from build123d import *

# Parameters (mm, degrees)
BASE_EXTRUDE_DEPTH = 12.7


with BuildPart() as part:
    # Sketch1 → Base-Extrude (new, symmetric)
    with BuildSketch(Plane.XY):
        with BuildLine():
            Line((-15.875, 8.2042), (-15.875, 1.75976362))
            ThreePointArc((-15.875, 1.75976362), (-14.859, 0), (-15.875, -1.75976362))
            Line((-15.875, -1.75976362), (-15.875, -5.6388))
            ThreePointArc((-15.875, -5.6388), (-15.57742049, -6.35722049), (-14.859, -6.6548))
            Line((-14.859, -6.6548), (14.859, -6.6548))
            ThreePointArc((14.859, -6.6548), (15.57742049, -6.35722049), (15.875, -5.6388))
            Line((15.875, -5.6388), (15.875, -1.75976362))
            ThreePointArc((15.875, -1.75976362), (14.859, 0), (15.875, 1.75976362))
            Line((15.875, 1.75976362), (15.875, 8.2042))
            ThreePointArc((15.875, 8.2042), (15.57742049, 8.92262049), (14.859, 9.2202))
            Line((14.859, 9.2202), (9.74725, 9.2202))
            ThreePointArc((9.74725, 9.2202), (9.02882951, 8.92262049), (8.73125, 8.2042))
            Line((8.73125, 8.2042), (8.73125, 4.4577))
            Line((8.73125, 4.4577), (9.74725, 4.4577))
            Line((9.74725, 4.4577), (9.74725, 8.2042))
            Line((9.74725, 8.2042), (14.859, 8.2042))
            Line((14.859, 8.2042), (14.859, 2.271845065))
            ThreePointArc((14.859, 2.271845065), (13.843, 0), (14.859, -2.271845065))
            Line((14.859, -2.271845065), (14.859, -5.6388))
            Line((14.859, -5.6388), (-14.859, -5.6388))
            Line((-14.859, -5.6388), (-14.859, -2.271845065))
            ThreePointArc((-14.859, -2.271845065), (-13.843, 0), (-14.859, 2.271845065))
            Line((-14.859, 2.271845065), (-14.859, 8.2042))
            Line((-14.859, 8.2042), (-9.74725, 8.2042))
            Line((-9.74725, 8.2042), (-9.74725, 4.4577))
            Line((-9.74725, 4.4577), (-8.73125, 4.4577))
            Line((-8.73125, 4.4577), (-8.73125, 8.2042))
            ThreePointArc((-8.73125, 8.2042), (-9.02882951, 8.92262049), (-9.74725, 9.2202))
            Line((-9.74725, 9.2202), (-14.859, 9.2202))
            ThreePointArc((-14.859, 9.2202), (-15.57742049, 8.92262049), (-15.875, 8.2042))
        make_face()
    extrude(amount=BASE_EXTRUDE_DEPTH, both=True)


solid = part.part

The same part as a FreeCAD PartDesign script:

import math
import FreeCAD as App
import Part
import Sketcher
from FreeCAD import Vector
Q = App.Units.Quantity

doc = App.newDocument("Part")
params = doc.addObject("Spreadsheet::Sheet", "Params")
for row, (alias, value) in enumerate([
    ("sketch1_radius", "0.08 in"),
    ("sketch1_radius2", "0.04 in"),
    ("sketch1_radius3", "0.12 in"),
    ("sketch1_width", "1.17 in"),
    ("pad1_length", "1 in"),
], start=1):
    params.set(f"A{row}", alias)
    params.set(f"B{row}", "=" + value)
    params.setAlias(f"B{row}", alias)

body = doc.addObject("PartDesign::Body", "Body")

sketch1 = doc.addObject("Sketcher::SketchObject", "Sketch")
body.addObject(sketch1)
sketch1.AttachmentSupport = (doc.XY_Plane, [""])
sketch1.MapMode = "FlatFace"
sketch1.addGeometry(Part.LineSegment(Vector(-15.9, 8.2, 0), Vector(-15.9, 1.8, 0)), False)
sketch1.addGeometry(Part.ArcOfCircle(Part.Circle(Vector(-16.9, 0, 0), Vector(0, 0, 1), 2), math.radians(-60), math.radians(60)), False)
sketch1.addGeometry(Part.LineSegment(Vector(-15.9, -1.8, 0), Vector(-15.9, -5.6, 0)), False)
sketch1.addGeometry(Part.ArcOfCircle(Part.Circle(Vector(-14.9, -5.6, 0), Vector(0, 0, 1), 1), math.radians(180), math.radians(270)), False)
sketch1.addGeometry(Part.LineSegment(Vector(-14.9, -6.7, 0), Vector(14.9, -6.7, 0)), False)
sketch1.addGeometry(Part.ArcOfCircle(Part.Circle(Vector(14.9, -5.6, 0), Vector(0, 0, 1), 1), math.radians(-90), math.radians(0)), False)
sketch1.addGeometry(Part.LineSegment(Vector(15.9, -5.6, 0), Vector(15.9, -1.8, 0)), False)
sketch1.addGeometry(Part.ArcOfCircle(Part.Circle(Vector(16.9, 0, 0), Vector(0, 0, 1), 2), math.radians(120), math.radians(240)), False)
sketch1.addGeometry(Part.LineSegment(Vector(15.9, 1.8, 0), Vector(15.9, 8.2, 0)), False)
sketch1.addGeometry(Part.ArcOfCircle(Part.Circle(Vector(14.9, 8.2, 0), Vector(0, 0, 1), 1), math.radians(0), math.radians(90)), False)
sketch1.addGeometry(Part.LineSegment(Vector(14.9, 9.2, 0), Vector(9.7, 9.2, 0)), False)
sketch1.addGeometry(Part.ArcOfCircle(Part.Circle(Vector(9.7, 8.2, 0), Vector(0, 0, 1), 1), math.radians(90), math.radians(180)), False)
sketch1.addGeometry(Part.LineSegment(Vector(8.7, 8.2, 0), Vector(8.7, 4.5, 0)), False)
sketch1.addGeometry(Part.LineSegment(Vector(8.7, 4.5, 0), Vector(9.7, 4.5, 0)), False)
sketch1.addGeometry(Part.LineSegment(Vector(9.7, 4.5, 0), Vector(9.7, 8.2, 0)), False)
sketch1.addGeometry(Part.LineSegment(Vector(9.7, 8.2, 0), Vector(14.9, 8.2, 0)), False)
sketch1.addGeometry(Part.LineSegment(Vector(14.9, 8.2, 0), Vector(14.9, 2.3, 0)), False)
sketch1.addGeometry(Part.ArcOfCircle(Part.Circle(Vector(16.9, 0, 0), Vector(0, 0, 1), 3), math.radians(132), math.radians(228)), False)
sketch1.addGeometry(Part.LineSegment(Vector(14.9, -2.3, 0), Vector(14.9, -5.6, 0)), False)
sketch1.addGeometry(Part.LineSegment(Vector(14.9, -5.6, 0), Vector(-14.9, -5.6, 0)), False)
sketch1.addGeometry(Part.LineSegment(Vector(-14.9, -5.6, 0), Vector(-14.9, -2.3, 0)), False)
sketch1.addGeometry(Part.ArcOfCircle(Part.Circle(Vector(-16.9, 0, 0), Vector(0, 0, 1), 3), math.radians(-48), math.radians(48)), False)
sketch1.addGeometry(Part.LineSegment(Vector(-14.9, 2.3, 0), Vector(-14.9, 8.2, 0)), False)
sketch1.addGeometry(Part.LineSegment(Vector(-14.9, 8.2, 0), Vector(-9.7, 8.2, 0)), False)
sketch1.addGeometry(Part.LineSegment(Vector(-9.7, 8.2, 0), Vector(-9.7, 4.5, 0)), False)
sketch1.addGeometry(Part.LineSegment(Vector(-9.7, 4.5, 0), Vector(-8.7, 4.5, 0)), False)
sketch1.addGeometry(Part.LineSegment(Vector(-8.7, 4.5, 0), Vector(-8.7, 8.2, 0)), False)
sketch1.addGeometry(Part.ArcOfCircle(Part.Circle(Vector(-9.7, 8.2, 0), Vector(0, 0, 1), 1), math.radians(0), math.radians(90)), False)
sketch1.addGeometry(Part.LineSegment(Vector(-9.7, 9.2, 0), Vector(-14.9, 9.2, 0)), False)
sketch1.addGeometry(Part.ArcOfCircle(Part.Circle(Vector(-14.9, 8.2, 0), Vector(0, 0, 1), 1), math.radians(90), math.radians(180)), False)
sketch1.addConstraint(Sketcher.Constraint("Coincident", 0, 2, 1, 2))
sketch1.addConstraint(Sketcher.Constraint("Coincident", 1, 1, 2, 1))
sketch1.addConstraint(Sketcher.Constraint("Tangent", 2, 2, 3, 1))
sketch1.addConstraint(Sketcher.Constraint("Tangent", 3, 2, 4, 1))
sketch1.addConstraint(Sketcher.Constraint("Tangent", 4, 2, 5, 1))
sketch1.addConstraint(Sketcher.Constraint("Tangent", 5, 2, 6, 1))
sketch1.addConstraint(Sketcher.Constraint("Coincident", 6, 2, 7, 2))
sketch1.addConstraint(Sketcher.Constraint("Coincident", 7, 1, 8, 1))
sketch1.addConstraint(Sketcher.Constraint("Tangent", 8, 2, 9, 1))
sketch1.addConstraint(Sketcher.Constraint("Tangent", 9, 2, 10, 1))
sketch1.addConstraint(Sketcher.Constraint("Tangent", 10, 2, 11, 1))
sketch1.addConstraint(Sketcher.Constraint("Tangent", 11, 2, 12, 1))
sketch1.addConstraint(Sketcher.Constraint("Coincident", 12, 2, 13, 1))
sketch1.addConstraint(Sketcher.Constraint("Coincident", 13, 2, 14, 1))
sketch1.addConstraint(Sketcher.Constraint("Coincident", 14, 2, 15, 1))
sketch1.addConstraint(Sketcher.Constraint("Coincident", 15, 2, 16, 1))
sketch1.addConstraint(Sketcher.Constraint("Coincident", 16, 2, 17, 1))
sketch1.addConstraint(Sketcher.Constraint("Coincident", 17, 2, 18, 1))
sketch1.addConstraint(Sketcher.Constraint("Coincident", 18, 2, 19, 1))
sketch1.addConstraint(Sketcher.Constraint("Coincident", 19, 2, 20, 1))
sketch1.addConstraint(Sketcher.Constraint("Coincident", 20, 2, 21, 1))
sketch1.addConstraint(Sketcher.Constraint("Coincident", 21, 2, 22, 1))
sketch1.addConstraint(Sketcher.Constraint("Coincident", 22, 2, 23, 1))
sketch1.addConstraint(Sketcher.Constraint("Coincident", 23, 2, 24, 1))
sketch1.addConstraint(Sketcher.Constraint("Coincident", 24, 2, 25, 1))
sketch1.addConstraint(Sketcher.Constraint("Coincident", 25, 2, 26, 1))
sketch1.addConstraint(Sketcher.Constraint("Tangent", 26, 2, 27, 1))
sketch1.addConstraint(Sketcher.Constraint("Tangent", 27, 2, 28, 1))
sketch1.addConstraint(Sketcher.Constraint("Tangent", 28, 2, 29, 1))
sketch1.addConstraint(Sketcher.Constraint("Tangent", 29, 2, 0, 1))
sketch1.addConstraint(Sketcher.Constraint("Vertical", 0))
sketch1.addConstraint(Sketcher.Constraint("Vertical", 2))
sketch1.addConstraint(Sketcher.Constraint("Horizontal", 4))
sketch1.addConstraint(Sketcher.Constraint("Vertical", 6))
sketch1.addConstraint(Sketcher.Constraint("Vertical", 8))
sketch1.addConstraint(Sketcher.Constraint("Horizontal", 10))
sketch1.addConstraint(Sketcher.Constraint("Vertical", 12))
sketch1.addConstraint(Sketcher.Constraint("Horizontal", 13))
sketch1.addConstraint(Sketcher.Constraint("Vertical", 14))
sketch1.addConstraint(Sketcher.Constraint("Horizontal", 15))
sketch1.addConstraint(Sketcher.Constraint("Vertical", 16))
sketch1.addConstraint(Sketcher.Constraint("Vertical", 18))
sketch1.addConstraint(Sketcher.Constraint("Horizontal", 19))
sketch1.addConstraint(Sketcher.Constraint("Vertical", 20))
sketch1.addConstraint(Sketcher.Constraint("Vertical", 22))
sketch1.addConstraint(Sketcher.Constraint("Horizontal", 23))
sketch1.addConstraint(Sketcher.Constraint("Vertical", 24))
sketch1.addConstraint(Sketcher.Constraint("Horizontal", 25))
sketch1.addConstraint(Sketcher.Constraint("Vertical", 26))
sketch1.addConstraint(Sketcher.Constraint("Horizontal", 28))
sketch1.addConstraint(Sketcher.Constraint("Coincident", 17, 3, 7, 3))
sketch1.addConstraint(Sketcher.Constraint("Coincident", 21, 3, 1, 3))
sketch1.addConstraint(Sketcher.Constraint("Coincident", 14, 2, 11, 3))
sketch1.addConstraint(Sketcher.Constraint("Coincident", 15, 2, 9, 3))
sketch1.addConstraint(Sketcher.Constraint("Coincident", 18, 2, 5, 3))
sketch1.addConstraint(Sketcher.Constraint("Coincident", 19, 2, 3, 3))
sketch1.addConstraint(Sketcher.Constraint("Coincident", 22, 2, 29, 3))
sketch1.addConstraint(Sketcher.Constraint("Coincident", 23, 2, 27, 3))
sketch1.addConstraint(Sketcher.Constraint("Equal", 1, 7))
sketch1.addConstraint(Sketcher.Constraint("Equal", 5, 9))
sketch1.addConstraint(Sketcher.Constraint("Equal", 17, 21))
sketch1.addConstraint(Sketcher.Constraint("Equal", 11, 27))
sketch1.addConstraint(Sketcher.Constraint("Symmetric", 1, 3, 7, 3, -1, 1))
sketch1.addConstraint(Sketcher.Constraint("Symmetric", 11, 3, 27, 3, -2))
sketch1.addConstraint(Sketcher.Constraint("Symmetric", 1, 1, 6, 2, -2))
sketch1.addConstraint(Sketcher.Constraint("Horizontal", 0, 2, 7, 1))
sketch1.addConstraint(Sketcher.Constraint("Horizontal", 13, 2, 24, 2))
sketch1.addConstraint(Sketcher.Constraint("Vertical", 5, 3, 9, 3))
sketch1.addConstraint(Sketcher.Constraint("Radius", 1, Q("0.08 in")))
sketch1.addConstraint(Sketcher.Constraint("Radius", 3, Q("0.04 in")))
sketch1.addConstraint(Sketcher.Constraint("Radius", 17, Q("0.12 in")))
sketch1.addConstraint(Sketcher.Constraint("DistanceX", 4, 1, 4, 2, Q("1.17 in")))
sketch1.addConstraint(Sketcher.Constraint("DistanceX", 1, 3, 3, 3, Q("0.08 in")))
sketch1.addConstraint(Sketcher.Constraint("DistanceY", 12, 2, 12, 1, Q("0.1475 in")))
sketch1.addConstraint(Sketcher.Constraint("DistanceY", 3, 3, -1, 1, Q("0.222 in")))
sketch1.addConstraint(Sketcher.Constraint("DistanceY", -1, 1, 9, 3, Q("0.323 in")))
sketch1.addConstraint(Sketcher.Constraint("DistanceX", -1, 1, 11, 2, Q("0.34375 in")))
sketch1.setExpression("Constraints[68]", "Params.sketch1_radius")
sketch1.setExpression("Constraints[69]", "Params.sketch1_radius2")
sketch1.setExpression("Constraints[70]", "Params.sketch1_radius3")
sketch1.setExpression("Constraints[71]", "Params.sketch1_width")
pad1 = doc.addObject("PartDesign::Pad", "Pad")
body.addObject(pad1)
pad1.Profile = sketch1
pad1.setExpression("Length", "Params.pad1_length")
pad1.Midplane = True

doc.recompute()
